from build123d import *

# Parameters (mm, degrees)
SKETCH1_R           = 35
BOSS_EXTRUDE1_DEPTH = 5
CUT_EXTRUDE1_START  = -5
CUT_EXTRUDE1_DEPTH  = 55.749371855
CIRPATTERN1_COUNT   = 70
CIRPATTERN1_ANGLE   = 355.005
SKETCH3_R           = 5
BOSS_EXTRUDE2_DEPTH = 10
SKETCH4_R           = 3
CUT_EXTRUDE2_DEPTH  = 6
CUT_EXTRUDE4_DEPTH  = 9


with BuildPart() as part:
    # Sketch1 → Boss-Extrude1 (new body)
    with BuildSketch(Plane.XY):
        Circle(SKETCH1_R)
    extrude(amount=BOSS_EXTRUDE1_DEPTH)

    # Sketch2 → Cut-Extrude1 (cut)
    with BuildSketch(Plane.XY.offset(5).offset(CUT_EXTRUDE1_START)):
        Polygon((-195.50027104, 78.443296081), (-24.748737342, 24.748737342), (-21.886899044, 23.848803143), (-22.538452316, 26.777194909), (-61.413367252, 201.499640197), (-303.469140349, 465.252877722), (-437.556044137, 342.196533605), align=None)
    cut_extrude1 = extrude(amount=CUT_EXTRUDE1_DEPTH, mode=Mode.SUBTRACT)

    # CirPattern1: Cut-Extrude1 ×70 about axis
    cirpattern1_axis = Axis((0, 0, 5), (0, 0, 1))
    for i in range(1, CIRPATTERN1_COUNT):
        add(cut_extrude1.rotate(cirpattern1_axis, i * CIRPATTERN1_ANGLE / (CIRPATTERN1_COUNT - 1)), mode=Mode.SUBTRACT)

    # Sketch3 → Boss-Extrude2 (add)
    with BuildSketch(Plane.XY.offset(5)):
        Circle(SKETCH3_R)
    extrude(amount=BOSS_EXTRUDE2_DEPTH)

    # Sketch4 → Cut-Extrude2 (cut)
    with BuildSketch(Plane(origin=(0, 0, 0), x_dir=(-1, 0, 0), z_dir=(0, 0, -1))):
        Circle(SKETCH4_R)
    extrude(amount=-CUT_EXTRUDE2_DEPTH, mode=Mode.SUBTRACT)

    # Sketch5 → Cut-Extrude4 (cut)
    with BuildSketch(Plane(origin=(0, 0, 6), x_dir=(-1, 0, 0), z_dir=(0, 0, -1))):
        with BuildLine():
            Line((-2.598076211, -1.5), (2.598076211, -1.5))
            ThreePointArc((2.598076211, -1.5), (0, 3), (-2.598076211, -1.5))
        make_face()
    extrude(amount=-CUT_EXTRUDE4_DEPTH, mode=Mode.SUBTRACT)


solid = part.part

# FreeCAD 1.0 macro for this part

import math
import FreeCAD as App
import Part
import Sketcher
from FreeCAD import Vector
Q = App.Units.Quantity


def add_polygon(sketch, points):
    """Adds a closed chain of lines whose ends are joined by coincident constraints."""
    first, n = sketch.GeometryCount, len(points)
    for a, b in zip(points, points[1:] + points[:1]):
        sketch.addGeometry(Part.LineSegment(App.Vector(*a, 0), App.Vector(*b, 0)), False)
    for i in range(n):
        sketch.addConstraint(Sketcher.Constraint("Coincident", first + i, 2, first + (i + 1) % n, 1))

doc = App.newDocument("Part")
body = doc.addObject("PartDesign::Body", "Body")

# Sketch on XY plane
sketch1 = body.newObject("Sketcher::SketchObject", "Sketch")
sketch1.AttachmentSupport = (doc.getObject("XY_Plane"), [""])
sketch1.MapMode = "FlatFace"
sketch1.addGeometry(Part.Circle(Vector(0, 0, 0), Vector(0, 0, 1), 35), False)
sketch1.addConstraint(Sketcher.Constraint("Coincident", 0, 3, -1, 1))
sketch1.addConstraint(Sketcher.Constraint("Diameter", 0, Q("70 mm")))
pad1 = body.newObject("PartDesign::Pad", "Pad")
pad1.Profile = sketch1
pad1.Length = 5

# Sketch on XY plane
sketch2 = body.newObject("Sketcher::SketchObject", "Sketch001")
sketch2.AttachmentSupport = (doc.getObject("XY_Plane"), [""])
sketch2.MapMode = "FlatFace"
add_polygon(sketch2, [(-195.5, 78.4), (-24.7, 24.7), (-21.9, 23.8), (-22.5, 26.8), (-61.4, 201.5), (-303.5, 465.3), (-437.6, 342.2)])  # lines 0-6
sketch2.addConstraint(Sketcher.Constraint("Parallel", 0, 1))
sketch2.addConstraint(Sketcher.Constraint("Parallel", 2, 3))
sketch2.addConstraint(Sketcher.Constraint("Perpendicular", 4, 5))
sketch2.addConstraint(Sketcher.Constraint("Perpendicular", 5, 6))
sketch2.addConstraint(Sketcher.Constraint("Equal", 1, 2))
sketch2.addConstraint(Sketcher.Constraint("Equal", 0, 3))
sketch2.addConstraint(Sketcher.Constraint("Equal", 4, 6))
sketch2.addConstraint(Sketcher.Constraint("Distance", 1, Q("3 mm")))
sketch2.addConstraint(Sketcher.Constraint("Distance", 4, Q("357.989899 mm")))
sketch2.addConstraint(Sketcher.Constraint("DistanceX", 1, 2, -1, 1, Q("21.886899 mm")))
sketch2.addConstraint(Sketcher.Constraint("DistanceY", 2, 2, 6, 2, Q("51.666101 mm")))
sketch2.addConstraint(Sketcher.Constraint("Distance", 0, Q("178.994949 mm")))
sketch2.addConstraint(Sketcher.Constraint("Distance", 5, Q("181.994949 mm")))
sketch2.addConstraint(Sketcher.Constraint("DistanceY", -1, 1, 3, 2, Q("201.49964 mm")))
pocket1 = body.newObject("PartDesign::Pocket", "Pocket")
pocket1.Profile = sketch2
pocket1.Length = 55.749372
pocket1.Reversed = True
doc.recompute()

polarpattern = body.newObject("PartDesign::PolarPattern", "PolarPattern")
polarpattern.Originals = [pocket1]
polarpattern.Axis = (doc.getObject("Z_Axis"), [""])
polarpattern.Angle = 355.005
polarpattern.Occurrences = 70
body.Tip = polarpattern

# Sketch on XY plane
sketch3 = body.newObject("Sketcher::SketchObject", "Sketch002")
sketch3.AttachmentSupport = (doc.getObject("XY_Plane"), [""])
sketch3.MapMode = "FlatFace"
sketch3.AttachmentOffset = App.Placement(Vector(0, 0, 5), App.Rotation())
sketch3.addGeometry(Part.Circle(Vector(0, 0, 0), Vector(0, 0, 1), 5), False)
sketch3.addConstraint(Sketcher.Constraint("Coincident", 0, 3, -1, 1))
sketch3.addConstraint(Sketcher.Constraint("Diameter", 0, Q("10 mm")))
pad2 = body.newObject("PartDesign::Pad", "Pad001")
pad2.Profile = sketch3
pad2.Length = 10

# Sketch on XY plane
sketch4 = body.newObject("Sketcher::SketchObject", "Sketch003")
sketch4.AttachmentSupport = (doc.getObject("XY_Plane"), [""])
sketch4.MapMode = "FlatFace"
sketch4.addGeometry(Part.Circle(Vector(0, 0, 0), Vector(0, 0, 1), 3), False)
sketch4.addConstraint(Sketcher.Constraint("Coincident", 0, 3, -1, 1))
sketch4.addConstraint(Sketcher.Constraint("Diameter", 0, Q("6 mm")))
pocket2 = body.newObject("PartDesign::Pocket", "Pocket001")
pocket2.Profile = sketch4
pocket2.Length = 6
pocket2.Reversed = True

# Sketch on XY plane
sketch5 = body.newObject("Sketcher::SketchObject", "Sketch004")
sketch5.AttachmentSupport = (doc.getObject("XY_Plane"), [""])
sketch5.MapMode = "FlatFace"
sketch5.AttachmentOffset = App.Placement(Vector(0, 0, 6), App.Rotation())
sketch5.addGeometry(Part.LineSegment(Vector(2.6, -1.5, 0), Vector(-2.6, -1.5, 0)), False)
sketch5.addGeometry(Part.ArcOfCircle(Part.Circle(Vector(0, 0, 0), Vector(0, 0, 1), 3), math.radians(-30), math.radians(210)), False)
sketch5.addConstraint(Sketcher.Constraint("Coincident", 0, 1, 1, 1))
sketch5.addConstraint(Sketcher.Constraint("Coincident", 1, 2, 0, 2))
sketch5.addConstraint(Sketcher.Constraint("Horizontal", 0))
sketch5.addConstraint(Sketcher.Constraint("Coincident", 1, 3, -1, 1))
sketch5.addConstraint(Sketcher.Constraint("Radius", 1, Q("3 mm")))
sketch5.addConstraint(Sketcher.Constraint("DistanceY", 0, 1, -1, 1, Q("1.5 mm")))
pocket3 = body.newObject("PartDesign::Pocket", "Pocket002")
pocket3.Profile = sketch5
pocket3.Length = 9
pocket3.Reversed = True

doc.recompute()
